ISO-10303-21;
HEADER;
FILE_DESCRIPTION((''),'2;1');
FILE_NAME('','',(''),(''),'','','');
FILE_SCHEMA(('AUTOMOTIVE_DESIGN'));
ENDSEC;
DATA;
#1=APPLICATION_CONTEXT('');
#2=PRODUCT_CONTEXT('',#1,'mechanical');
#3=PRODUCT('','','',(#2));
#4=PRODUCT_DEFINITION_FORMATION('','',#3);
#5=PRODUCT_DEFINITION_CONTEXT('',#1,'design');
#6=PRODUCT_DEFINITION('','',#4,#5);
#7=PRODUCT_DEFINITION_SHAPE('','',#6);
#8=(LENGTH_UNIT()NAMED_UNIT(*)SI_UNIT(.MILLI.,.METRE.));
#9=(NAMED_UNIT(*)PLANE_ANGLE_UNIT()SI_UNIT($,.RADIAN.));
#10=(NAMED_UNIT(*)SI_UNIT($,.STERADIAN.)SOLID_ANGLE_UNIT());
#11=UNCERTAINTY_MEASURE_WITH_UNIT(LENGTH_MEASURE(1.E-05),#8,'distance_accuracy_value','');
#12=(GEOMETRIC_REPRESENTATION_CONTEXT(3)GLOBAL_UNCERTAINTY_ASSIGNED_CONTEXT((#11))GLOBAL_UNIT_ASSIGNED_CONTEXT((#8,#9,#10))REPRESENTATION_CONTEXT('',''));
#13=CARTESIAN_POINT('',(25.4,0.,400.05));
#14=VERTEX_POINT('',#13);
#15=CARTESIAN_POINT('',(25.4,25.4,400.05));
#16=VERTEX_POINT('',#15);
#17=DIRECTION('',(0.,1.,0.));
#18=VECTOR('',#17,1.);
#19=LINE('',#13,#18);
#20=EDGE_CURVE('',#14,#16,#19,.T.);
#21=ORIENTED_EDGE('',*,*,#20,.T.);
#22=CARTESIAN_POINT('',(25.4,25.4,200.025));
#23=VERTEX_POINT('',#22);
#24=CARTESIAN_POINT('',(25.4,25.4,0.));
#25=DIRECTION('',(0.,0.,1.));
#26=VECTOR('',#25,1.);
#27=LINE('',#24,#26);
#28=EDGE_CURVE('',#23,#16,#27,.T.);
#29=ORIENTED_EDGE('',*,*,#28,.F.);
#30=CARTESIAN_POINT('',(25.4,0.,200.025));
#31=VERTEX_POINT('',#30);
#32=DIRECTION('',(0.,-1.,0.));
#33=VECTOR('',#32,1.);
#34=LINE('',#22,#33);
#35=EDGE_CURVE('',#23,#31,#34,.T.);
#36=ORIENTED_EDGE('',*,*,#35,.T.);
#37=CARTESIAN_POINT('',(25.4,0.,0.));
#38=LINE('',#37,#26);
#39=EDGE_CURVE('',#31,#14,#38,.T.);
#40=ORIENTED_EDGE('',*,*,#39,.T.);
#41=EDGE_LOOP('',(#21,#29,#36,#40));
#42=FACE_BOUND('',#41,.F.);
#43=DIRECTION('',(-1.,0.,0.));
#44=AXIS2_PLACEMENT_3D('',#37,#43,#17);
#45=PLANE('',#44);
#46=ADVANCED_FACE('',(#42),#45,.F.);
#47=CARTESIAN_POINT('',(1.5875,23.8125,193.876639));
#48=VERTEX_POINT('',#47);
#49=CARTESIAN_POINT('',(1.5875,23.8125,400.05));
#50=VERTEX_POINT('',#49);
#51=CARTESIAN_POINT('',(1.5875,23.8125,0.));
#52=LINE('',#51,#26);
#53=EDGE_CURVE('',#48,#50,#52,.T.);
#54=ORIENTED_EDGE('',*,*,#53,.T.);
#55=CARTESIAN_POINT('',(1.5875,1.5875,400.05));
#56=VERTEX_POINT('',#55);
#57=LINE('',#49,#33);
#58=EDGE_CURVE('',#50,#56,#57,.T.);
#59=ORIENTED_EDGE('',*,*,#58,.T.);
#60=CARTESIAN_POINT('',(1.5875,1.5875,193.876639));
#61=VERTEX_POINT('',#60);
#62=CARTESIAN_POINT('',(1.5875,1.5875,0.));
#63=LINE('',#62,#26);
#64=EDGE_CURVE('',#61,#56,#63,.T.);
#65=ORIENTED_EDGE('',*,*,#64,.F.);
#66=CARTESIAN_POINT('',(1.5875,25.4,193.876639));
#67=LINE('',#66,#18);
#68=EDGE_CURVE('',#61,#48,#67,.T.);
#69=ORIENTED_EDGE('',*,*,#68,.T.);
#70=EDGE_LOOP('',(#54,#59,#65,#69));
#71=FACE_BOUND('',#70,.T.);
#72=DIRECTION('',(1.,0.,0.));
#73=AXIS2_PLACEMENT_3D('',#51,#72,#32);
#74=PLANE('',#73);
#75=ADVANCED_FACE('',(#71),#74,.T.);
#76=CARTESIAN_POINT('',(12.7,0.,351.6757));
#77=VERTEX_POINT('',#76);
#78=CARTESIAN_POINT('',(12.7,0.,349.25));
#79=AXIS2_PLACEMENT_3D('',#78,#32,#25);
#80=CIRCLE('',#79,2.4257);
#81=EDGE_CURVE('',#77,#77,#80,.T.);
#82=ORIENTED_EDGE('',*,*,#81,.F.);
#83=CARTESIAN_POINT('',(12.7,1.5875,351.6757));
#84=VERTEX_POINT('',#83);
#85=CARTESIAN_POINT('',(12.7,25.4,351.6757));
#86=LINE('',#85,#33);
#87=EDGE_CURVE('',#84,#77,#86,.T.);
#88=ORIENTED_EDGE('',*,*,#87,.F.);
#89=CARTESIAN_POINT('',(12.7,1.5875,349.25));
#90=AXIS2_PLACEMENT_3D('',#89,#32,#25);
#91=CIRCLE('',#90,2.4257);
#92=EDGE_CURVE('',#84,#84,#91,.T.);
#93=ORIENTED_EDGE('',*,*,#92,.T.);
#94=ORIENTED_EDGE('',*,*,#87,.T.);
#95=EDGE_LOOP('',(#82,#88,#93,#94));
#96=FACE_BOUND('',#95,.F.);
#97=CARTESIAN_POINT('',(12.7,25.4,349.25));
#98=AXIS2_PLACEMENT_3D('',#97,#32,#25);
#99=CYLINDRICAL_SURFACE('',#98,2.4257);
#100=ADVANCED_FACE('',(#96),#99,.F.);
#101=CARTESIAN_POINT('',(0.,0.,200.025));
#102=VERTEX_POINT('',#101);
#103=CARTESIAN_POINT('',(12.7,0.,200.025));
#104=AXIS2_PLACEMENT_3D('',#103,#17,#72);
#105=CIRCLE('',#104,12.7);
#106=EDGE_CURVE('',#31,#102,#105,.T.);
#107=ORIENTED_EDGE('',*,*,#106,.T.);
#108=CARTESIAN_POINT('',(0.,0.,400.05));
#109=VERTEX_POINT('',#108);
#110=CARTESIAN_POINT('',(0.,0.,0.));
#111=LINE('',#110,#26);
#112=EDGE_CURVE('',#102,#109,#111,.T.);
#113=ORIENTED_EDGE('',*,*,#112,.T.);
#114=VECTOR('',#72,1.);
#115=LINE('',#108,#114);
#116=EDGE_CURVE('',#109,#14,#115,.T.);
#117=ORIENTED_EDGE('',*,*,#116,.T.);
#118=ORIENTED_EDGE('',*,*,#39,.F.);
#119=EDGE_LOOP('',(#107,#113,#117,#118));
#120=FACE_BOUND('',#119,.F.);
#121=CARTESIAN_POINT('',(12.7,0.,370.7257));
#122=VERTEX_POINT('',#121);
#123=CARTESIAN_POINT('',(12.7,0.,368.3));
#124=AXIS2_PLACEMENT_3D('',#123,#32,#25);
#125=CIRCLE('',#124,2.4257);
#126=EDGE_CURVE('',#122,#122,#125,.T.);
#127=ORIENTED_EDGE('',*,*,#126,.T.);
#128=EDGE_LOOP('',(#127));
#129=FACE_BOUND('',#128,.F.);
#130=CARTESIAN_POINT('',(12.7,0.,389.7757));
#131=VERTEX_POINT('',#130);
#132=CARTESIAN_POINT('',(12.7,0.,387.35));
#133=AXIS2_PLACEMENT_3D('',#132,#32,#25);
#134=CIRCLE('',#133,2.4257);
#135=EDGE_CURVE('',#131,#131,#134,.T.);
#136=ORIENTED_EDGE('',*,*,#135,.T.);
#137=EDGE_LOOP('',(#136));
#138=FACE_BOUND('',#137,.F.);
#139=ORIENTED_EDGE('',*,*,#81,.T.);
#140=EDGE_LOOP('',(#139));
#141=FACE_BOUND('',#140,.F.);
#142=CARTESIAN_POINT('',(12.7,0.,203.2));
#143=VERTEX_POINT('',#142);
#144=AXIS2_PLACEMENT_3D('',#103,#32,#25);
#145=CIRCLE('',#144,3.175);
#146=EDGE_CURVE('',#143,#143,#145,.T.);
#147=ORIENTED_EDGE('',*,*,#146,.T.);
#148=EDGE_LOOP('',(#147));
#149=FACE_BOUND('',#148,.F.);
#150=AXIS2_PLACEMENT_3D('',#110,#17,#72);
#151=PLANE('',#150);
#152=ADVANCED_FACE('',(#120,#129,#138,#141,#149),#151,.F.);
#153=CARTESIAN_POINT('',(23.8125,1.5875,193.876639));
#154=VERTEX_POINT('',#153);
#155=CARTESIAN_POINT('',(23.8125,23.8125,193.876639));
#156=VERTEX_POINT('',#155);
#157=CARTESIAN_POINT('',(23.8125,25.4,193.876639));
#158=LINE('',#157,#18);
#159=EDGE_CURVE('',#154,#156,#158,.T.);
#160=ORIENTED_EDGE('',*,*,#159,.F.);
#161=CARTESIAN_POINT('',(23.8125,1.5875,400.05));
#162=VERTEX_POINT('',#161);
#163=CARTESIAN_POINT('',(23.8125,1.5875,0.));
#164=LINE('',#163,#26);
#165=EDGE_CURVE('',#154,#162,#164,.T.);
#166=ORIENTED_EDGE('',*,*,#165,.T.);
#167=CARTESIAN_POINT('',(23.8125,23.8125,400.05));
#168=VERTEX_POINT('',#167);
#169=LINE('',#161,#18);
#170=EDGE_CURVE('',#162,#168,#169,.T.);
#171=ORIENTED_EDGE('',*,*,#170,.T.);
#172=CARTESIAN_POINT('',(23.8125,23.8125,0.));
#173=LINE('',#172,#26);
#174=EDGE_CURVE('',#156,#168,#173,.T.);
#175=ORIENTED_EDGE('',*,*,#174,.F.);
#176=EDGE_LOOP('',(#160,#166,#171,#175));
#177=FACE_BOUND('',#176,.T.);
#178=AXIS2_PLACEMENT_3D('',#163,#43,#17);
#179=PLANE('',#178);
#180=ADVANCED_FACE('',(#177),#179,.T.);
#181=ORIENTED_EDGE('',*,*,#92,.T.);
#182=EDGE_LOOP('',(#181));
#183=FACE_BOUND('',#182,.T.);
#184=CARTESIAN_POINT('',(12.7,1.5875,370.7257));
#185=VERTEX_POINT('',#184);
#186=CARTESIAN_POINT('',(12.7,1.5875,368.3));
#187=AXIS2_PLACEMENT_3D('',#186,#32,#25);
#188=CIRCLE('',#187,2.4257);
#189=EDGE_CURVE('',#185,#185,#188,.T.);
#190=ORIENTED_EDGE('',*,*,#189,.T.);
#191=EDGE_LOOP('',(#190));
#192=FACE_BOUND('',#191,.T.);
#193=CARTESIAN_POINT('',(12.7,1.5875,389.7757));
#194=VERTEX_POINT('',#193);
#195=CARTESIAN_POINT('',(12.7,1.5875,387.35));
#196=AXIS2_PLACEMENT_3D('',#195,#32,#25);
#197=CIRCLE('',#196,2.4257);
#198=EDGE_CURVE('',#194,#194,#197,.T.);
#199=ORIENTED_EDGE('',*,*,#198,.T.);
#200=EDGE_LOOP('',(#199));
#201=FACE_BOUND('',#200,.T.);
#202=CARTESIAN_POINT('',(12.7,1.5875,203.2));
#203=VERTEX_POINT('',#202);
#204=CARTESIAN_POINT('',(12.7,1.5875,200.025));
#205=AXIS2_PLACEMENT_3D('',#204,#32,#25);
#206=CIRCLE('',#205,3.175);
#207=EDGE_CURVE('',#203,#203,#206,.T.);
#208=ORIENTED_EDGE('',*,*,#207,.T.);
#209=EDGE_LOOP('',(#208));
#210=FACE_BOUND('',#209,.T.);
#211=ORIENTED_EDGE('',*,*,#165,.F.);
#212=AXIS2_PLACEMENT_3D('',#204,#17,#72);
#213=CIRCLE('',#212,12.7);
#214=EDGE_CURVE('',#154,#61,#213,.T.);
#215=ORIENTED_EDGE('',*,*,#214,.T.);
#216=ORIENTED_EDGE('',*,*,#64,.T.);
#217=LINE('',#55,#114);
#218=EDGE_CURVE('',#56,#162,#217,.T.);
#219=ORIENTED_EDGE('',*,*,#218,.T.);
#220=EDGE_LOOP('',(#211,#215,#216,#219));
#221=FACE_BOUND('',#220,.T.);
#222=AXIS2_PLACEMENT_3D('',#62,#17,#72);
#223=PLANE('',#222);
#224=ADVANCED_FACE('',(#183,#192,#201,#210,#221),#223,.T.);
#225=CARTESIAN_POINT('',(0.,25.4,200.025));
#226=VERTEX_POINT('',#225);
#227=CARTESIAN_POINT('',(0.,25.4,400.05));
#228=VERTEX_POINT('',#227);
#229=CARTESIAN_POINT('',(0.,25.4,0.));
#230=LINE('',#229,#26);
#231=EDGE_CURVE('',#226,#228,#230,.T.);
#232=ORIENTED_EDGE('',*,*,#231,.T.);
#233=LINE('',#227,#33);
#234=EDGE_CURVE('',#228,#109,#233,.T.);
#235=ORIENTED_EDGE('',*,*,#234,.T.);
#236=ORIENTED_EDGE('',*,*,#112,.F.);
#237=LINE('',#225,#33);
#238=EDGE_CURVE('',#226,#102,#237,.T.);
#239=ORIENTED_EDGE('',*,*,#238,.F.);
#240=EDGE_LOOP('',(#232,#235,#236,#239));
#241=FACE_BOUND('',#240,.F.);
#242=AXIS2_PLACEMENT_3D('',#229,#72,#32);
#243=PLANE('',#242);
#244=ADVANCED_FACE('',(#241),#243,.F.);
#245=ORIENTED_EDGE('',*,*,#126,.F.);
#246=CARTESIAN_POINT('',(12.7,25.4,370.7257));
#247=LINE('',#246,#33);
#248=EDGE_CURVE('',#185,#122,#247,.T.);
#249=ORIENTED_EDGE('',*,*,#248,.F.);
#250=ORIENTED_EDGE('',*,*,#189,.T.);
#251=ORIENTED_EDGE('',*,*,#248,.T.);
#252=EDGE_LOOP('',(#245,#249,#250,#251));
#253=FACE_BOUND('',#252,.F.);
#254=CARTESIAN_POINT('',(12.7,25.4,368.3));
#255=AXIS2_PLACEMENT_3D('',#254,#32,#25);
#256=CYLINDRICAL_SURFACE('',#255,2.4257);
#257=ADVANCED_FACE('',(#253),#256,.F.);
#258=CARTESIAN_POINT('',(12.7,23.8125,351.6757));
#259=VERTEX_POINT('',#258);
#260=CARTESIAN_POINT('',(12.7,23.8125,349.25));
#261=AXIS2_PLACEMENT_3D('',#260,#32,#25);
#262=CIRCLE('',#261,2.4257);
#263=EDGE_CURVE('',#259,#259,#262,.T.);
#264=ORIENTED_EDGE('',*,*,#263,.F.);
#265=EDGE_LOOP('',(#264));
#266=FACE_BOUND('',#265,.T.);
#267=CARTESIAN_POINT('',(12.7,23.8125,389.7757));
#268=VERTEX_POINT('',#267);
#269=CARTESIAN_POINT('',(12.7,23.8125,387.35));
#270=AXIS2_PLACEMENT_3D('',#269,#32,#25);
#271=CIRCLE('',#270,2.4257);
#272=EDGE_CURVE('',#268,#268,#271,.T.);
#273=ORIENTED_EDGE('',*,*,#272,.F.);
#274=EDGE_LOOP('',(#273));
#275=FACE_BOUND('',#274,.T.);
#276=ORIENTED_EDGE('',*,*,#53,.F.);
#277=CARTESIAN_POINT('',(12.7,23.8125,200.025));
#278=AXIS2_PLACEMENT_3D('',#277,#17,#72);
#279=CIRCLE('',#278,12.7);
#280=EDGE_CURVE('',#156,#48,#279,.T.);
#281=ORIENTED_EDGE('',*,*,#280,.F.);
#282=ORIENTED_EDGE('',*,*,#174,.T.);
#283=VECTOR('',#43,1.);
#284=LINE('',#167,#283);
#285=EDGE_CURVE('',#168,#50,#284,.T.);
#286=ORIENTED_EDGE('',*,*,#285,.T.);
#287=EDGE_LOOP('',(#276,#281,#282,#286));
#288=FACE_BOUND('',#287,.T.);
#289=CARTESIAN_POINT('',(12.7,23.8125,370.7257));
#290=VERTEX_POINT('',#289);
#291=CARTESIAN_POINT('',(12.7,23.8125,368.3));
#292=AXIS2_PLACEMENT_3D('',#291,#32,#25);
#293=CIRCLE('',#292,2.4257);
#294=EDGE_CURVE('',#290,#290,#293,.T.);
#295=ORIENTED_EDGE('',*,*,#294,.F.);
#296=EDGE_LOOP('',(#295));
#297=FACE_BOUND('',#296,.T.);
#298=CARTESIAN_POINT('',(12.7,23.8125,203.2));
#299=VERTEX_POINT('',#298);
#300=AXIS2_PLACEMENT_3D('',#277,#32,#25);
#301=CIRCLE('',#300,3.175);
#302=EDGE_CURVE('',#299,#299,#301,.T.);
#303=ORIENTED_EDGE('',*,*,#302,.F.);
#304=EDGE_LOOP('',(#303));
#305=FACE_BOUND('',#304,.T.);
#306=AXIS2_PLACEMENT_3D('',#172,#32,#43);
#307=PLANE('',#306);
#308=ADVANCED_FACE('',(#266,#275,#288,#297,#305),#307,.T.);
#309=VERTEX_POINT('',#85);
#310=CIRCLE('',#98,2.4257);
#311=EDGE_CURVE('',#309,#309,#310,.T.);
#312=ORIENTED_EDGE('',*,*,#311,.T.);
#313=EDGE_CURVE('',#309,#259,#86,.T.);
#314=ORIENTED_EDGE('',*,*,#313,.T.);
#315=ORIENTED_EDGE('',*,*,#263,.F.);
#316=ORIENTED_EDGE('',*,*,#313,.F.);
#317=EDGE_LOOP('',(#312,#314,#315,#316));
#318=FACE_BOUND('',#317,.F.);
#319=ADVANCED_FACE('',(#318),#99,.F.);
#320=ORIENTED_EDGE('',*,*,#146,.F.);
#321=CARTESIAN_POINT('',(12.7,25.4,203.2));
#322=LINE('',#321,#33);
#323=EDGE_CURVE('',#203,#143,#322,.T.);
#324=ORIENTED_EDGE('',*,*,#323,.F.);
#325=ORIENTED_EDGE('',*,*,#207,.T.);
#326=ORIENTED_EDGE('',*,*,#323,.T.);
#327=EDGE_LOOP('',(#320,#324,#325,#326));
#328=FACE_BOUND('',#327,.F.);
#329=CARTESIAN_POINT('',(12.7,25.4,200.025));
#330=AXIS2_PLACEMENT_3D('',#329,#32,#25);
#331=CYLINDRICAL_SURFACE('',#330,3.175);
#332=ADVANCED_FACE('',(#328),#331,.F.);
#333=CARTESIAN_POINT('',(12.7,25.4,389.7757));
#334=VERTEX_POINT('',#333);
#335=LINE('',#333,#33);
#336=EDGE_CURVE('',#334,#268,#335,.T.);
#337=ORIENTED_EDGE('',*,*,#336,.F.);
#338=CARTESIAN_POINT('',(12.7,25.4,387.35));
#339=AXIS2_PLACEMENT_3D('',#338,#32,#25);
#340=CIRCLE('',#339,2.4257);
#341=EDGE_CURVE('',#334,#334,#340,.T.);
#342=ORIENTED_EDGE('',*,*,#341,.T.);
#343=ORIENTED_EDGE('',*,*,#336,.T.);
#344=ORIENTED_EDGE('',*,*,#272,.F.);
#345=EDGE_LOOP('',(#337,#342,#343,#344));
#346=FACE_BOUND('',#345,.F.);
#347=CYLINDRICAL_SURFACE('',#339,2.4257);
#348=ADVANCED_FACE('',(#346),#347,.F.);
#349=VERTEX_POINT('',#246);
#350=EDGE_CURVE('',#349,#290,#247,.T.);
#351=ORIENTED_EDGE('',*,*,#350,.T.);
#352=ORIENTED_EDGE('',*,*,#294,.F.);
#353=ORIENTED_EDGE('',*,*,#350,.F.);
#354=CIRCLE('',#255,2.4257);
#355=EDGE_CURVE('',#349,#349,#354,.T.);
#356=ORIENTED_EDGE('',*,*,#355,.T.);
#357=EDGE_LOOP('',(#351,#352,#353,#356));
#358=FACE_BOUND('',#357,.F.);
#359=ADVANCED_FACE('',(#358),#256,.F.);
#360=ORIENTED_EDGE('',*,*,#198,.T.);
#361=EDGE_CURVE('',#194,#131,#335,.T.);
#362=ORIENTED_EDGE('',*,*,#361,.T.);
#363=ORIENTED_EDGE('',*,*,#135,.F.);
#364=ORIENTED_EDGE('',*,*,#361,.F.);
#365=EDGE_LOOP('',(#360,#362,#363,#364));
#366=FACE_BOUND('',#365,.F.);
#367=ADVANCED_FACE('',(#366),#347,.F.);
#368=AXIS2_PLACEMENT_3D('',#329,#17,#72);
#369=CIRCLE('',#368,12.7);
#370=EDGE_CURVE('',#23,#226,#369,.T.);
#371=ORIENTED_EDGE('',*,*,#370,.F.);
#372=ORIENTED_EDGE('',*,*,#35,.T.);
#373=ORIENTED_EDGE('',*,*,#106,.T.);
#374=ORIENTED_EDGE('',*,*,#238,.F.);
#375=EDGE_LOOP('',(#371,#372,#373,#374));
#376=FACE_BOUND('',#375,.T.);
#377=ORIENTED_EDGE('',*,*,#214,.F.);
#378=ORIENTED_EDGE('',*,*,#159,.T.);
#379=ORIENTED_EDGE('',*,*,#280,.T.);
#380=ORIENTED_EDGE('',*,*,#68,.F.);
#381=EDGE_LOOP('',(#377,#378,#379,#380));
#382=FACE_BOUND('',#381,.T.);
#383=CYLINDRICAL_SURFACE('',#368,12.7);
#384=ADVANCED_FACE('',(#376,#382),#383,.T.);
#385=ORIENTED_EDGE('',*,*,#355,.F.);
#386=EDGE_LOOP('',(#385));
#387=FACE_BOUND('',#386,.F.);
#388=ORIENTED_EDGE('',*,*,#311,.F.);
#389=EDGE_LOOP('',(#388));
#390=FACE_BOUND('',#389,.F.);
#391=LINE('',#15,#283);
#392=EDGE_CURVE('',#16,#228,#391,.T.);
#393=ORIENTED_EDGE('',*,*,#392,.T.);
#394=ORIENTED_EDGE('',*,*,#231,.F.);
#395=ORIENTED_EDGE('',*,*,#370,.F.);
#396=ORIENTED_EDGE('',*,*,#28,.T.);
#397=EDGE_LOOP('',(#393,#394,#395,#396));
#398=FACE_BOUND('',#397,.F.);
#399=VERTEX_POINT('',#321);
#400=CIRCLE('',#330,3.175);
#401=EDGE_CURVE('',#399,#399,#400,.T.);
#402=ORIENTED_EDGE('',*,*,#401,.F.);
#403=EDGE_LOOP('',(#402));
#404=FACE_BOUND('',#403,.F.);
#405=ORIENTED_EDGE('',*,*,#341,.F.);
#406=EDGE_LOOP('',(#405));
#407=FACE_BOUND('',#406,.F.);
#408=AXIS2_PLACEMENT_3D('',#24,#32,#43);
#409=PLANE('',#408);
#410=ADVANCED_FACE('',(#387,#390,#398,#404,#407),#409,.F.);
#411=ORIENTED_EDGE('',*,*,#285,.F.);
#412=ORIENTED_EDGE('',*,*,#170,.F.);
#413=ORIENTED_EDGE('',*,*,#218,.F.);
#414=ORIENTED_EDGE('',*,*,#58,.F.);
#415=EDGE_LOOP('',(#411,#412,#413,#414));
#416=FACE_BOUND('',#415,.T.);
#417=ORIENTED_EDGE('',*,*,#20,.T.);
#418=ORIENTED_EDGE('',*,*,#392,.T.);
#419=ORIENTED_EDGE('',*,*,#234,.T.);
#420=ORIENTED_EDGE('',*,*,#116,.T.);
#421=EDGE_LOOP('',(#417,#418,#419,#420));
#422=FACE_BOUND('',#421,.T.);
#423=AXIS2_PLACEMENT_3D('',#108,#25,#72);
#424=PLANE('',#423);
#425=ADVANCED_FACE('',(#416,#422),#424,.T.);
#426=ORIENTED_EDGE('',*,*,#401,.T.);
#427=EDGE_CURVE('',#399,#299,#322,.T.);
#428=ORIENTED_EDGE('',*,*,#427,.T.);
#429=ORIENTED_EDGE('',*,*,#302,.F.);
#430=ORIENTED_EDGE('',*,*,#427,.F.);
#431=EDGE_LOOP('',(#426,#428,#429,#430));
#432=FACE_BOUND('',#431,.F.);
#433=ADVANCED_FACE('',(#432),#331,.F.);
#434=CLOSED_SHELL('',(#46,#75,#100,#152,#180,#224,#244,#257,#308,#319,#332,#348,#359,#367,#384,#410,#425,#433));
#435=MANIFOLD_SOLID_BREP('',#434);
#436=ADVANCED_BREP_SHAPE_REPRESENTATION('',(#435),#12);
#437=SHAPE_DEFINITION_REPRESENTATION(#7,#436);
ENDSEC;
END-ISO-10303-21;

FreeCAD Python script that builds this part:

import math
import FreeCAD as App
import Part
import Sketcher
from FreeCAD import Vector
Q = App.Units.Quantity


def add_polygon(sketch, points):
    """Adds a closed chain of lines whose ends are joined by coincident constraints."""
    first, n = sketch.GeometryCount, len(points)
    for a, b in zip(points, points[1:] + points[:1]):
        sketch.addGeometry(Part.LineSegment(App.Vector(*a, 0), App.Vector(*b, 0)), False)
    for i in range(n):
        sketch.addConstraint(Sketcher.Constraint("Coincident", first + i, 2, first + (i + 1) % n, 1))

doc = App.newDocument("Part")
body = doc.addObject("PartDesign::Body", "Body")

# Sketch on XY plane
sketch1 = body.newObject("Sketcher::SketchObject", "Sketch")
sketch1.AttachmentSupport = (doc.getObject("XY_Plane"), [""])
sketch1.MapMode = "FlatFace"
add_polygon(sketch1, [(0, 25), (0, 0), (25, 0), (25, 25)])  # lines 0-3
add_polygon(sketch1, [(24, 2), (2, 2), (2, 24), (24, 24)])  # lines 4-7
sketch1.addConstraint([
    Sketcher.Constraint("Vertical", 0),
    Sketcher.Constraint("Horizontal", 1),
    Sketcher.Constraint("Vertical", 2),
    Sketcher.Constraint("Horizontal", 3),
    Sketcher.Constraint("Horizontal", 4),
    Sketcher.Constraint("Vertical", 5),
    Sketcher.Constraint("Horizontal", 6),
    Sketcher.Constraint("Vertical", 7),
    Sketcher.Constraint("Coincident", 0, 2, -1, 1),
    Sketcher.Constraint("Equal", 3, 0),
    Sketcher.Constraint("Equal", 6, 5),
    Sketcher.Constraint("DistanceX", 1, 1, 1, 2, Q("1 in")),
    Sketcher.Constraint("DistanceX", -1, 1, 4, 2, Q("0.0625 in")),
    Sketcher.Constraint("DistanceY", -1, 1, 4, 2, Q("0.0625 in")),
    Sketcher.Constraint("DistanceY", 5, 2, 3, 2, Q("0.0625 in")),
])
pad1 = body.newObject("PartDesign::Pad", "Pad")
pad1.Profile = sketch1
pad1.Length = Q("15.75 in")

# Sketch on XZ plane
sketch2 = body.newObject("Sketcher::SketchObject", "Sketch001")
sketch2.AttachmentSupport = (doc.getObject("XZ_Plane"), [""])
sketch2.MapMode = "FlatFace"
sketch2.AttachmentOffset = App.Placement(Vector(0, 0, -1 * 25.4), App.Rotation())
sketch2.addGeometry(Part.Circle(Vector(12.7, 200, 0), Vector(0, 0, 1), 3.2), False)
sketch2.addConstraint([
    Sketcher.Constraint("Diameter", 0, Q("0.25 in")),
    Sketcher.Constraint("DistanceX", -1, 1, 0, 3, Q("0.5 in")),
    Sketcher.Constraint("DistanceY", -1, 1, 0, 3, Q("7.875 in")),
])
doc.recompute()
hole = body.newObject("PartDesign::Hole", "Hole")
hole.Profile = sketch2
hole.ThreadType = "None"
hole.Diameter = Q("0.25 in")
hole.DepthType = "ThroughAll"
hole.Reversed = True

# Sketch on XZ plane
sketch3 = body.newObject("Sketcher::SketchObject", "Sketch002")
sketch3.AttachmentSupport = (doc.getObject("XZ_Plane"), [""])
sketch3.MapMode = "FlatFace"
sketch3.AttachmentOffset = App.Placement(Vector(0, 0, -1 * 25.4), App.Rotation())
sketch3.addGeometry([
    Part.LineSegment(Vector(25, 0, 0), Vector(0, 0, 0)),
    Part.LineSegment(Vector(0, 0, 0), Vector(0, 200, 0)),
    Part.ArcOfCircle(Part.Circle(Vector(13, 200, 0), Vector(0, 0, 1), 13), math.radians(180), math.radians(360)),
    Part.LineSegment(Vector(25, 200, 0), Vector(25, 0, 0)),
], False)
sketch3.addConstraint([
    Sketcher.Constraint("Coincident", 0, 2, 1, 1),
    Sketcher.Constraint("Tangent", 1, 2, 2, 1),
    Sketcher.Constraint("Tangent", 2, 2, 3, 1),
    Sketcher.Constraint("Coincident", 3, 2, 0, 1),
    Sketcher.Constraint("Horizontal", 0),
    Sketcher.Constraint("Vertical", 1),
    Sketcher.Constraint("Vertical", 3),
    Sketcher.Constraint("Coincident", 0, 2, -1, 1),
    Sketcher.Constraint("Radius", 2, Q("0.5 in")),
    Sketcher.Constraint("DistanceY", 1, 1, 1, 2, Q("7.875 in")),
])
pocket1 = body.newObject("PartDesign::Pocket", "Pocket")
pocket1.Profile = sketch3
pocket1.Length = Q("1 in")
pocket1.Reversed = True

# Sketch on XZ plane
sketch4 = body.newObject("Sketcher::SketchObject", "Sketch003")
sketch4.AttachmentSupport = (doc.getObject("XZ_Plane"), [""])
sketch4.MapMode = "FlatFace"
sketch4.AttachmentOffset = App.Placement(Vector(0, 0, -1 * 25.4), App.Rotation())
sketch4.addGeometry([
    Part.Circle(Vector(12.7, 387.4, 0), Vector(0, 0, 1), 2.4),
    Part.Circle(Vector(12.7, 368.3, 0), Vector(0, 0, 1), 2.4),
    Part.Circle(Vector(12.7, 349.2, 0), Vector(0, 0, 1), 2.4),
], False)
sketch4.addConstraint([
    Sketcher.Constraint("Equal", 0, 1),
    Sketcher.Constraint("Equal", 1, 2),
    Sketcher.Constraint("Vertical", 0, 3, 1, 3),
    Sketcher.Constraint("Vertical", 1, 3, 2, 3),
    Sketcher.Constraint("Diameter", 0, Q("0.191 in")),
    Sketcher.Constraint("DistanceX", -1, 1, 0, 3, Q("0.5 in")),
    Sketcher.Constraint("DistanceY", -1, 1, 1, 3, Q("14.5 in")),
    Sketcher.Constraint("DistanceY", 2, 3, 0, 3, Q("1.5 in")),
    Sketcher.Constraint("DistanceY", -1, 1, 0, 3, Q("15.25 in")),
])
doc.recompute()
hole2 = body.newObject("PartDesign::Hole", "Hole001")
hole2.Profile = sketch4
hole2.ThreadType = "None"
hole2.Diameter = Q("0.191 in")
hole2.DepthType = "ThroughAll"
hole2.Reversed = True

doc.recompute()
